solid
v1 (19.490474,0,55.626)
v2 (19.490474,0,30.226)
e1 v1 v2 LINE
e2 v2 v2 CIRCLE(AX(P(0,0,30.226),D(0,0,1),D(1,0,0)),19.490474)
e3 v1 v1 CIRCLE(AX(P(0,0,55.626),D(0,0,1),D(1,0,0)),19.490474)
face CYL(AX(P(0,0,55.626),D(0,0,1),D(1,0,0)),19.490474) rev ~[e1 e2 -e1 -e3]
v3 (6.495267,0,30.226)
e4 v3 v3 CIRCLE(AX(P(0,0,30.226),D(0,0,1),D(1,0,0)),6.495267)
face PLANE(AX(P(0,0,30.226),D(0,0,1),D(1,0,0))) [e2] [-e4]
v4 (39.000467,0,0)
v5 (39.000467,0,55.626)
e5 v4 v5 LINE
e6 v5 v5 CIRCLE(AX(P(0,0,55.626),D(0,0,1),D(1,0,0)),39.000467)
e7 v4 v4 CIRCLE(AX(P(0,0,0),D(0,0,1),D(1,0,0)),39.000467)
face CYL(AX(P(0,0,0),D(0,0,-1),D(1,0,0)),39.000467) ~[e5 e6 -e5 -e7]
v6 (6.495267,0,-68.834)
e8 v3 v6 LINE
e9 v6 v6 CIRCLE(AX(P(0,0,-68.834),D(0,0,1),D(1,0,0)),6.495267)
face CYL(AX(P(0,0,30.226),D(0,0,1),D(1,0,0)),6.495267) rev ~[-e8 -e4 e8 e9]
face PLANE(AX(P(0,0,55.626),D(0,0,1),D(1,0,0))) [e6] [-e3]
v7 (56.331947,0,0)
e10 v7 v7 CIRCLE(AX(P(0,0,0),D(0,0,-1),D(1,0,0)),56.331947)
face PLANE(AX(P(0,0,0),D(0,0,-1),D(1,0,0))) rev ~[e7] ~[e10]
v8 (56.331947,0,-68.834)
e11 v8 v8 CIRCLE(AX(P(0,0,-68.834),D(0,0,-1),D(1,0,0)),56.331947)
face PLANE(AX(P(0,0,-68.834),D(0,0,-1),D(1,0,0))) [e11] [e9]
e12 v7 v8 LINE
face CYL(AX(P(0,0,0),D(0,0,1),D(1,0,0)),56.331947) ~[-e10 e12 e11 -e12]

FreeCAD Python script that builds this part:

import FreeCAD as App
import Part
import Sketcher
from FreeCAD import Vector
Q = App.Units.Quantity

doc = App.newDocument("Part")
body = doc.addObject("PartDesign::Body", "Body")

sketch1 = body.newObject("Sketcher::SketchObject", "Sketch")
sketch1.AttachmentSupport = (doc.getObject("XY_Plane"), [""])
sketch1.MapMode = "FlatFace"
sketch1.addGeometry(Part.Circle(Vector(0, 0, 0), Vector(0, 0, 1), 39.000467), False)
sketch1.addConstraint(Sketcher.Constraint("Coincident", 0, 3, -1, 1))
sketch1.addConstraint(Sketcher.Constraint("Diameter", 0, 78.000934))
pad1 = body.newObject("PartDesign::Pad", "Pad")
pad1.Profile = sketch1
pad1.Length = Q("2.19 in")

sketch2 = body.newObject("Sketcher::SketchObject", "Sketch001")
sketch2.AttachmentSupport = (doc.getObject("XY_Plane"), [""])
sketch2.MapMode = "FlatFace"
sketch2.AttachmentOffset = App.Placement(Vector(0, 0, 2.19 * 25.4), App.Rotation())
sketch2.addGeometry(Part.Circle(Vector(0, 0, 0), Vector(0, 0, 1), 21.469452), False)
sketch2.addConstraint(Sketcher.Constraint("Coincident", 0, 3, -1, 1))
sketch2.addConstraint(Sketcher.Constraint("Diameter", 0, 42.938904))
pad2 = body.newObject("PartDesign::Pad", "Pad001")
pad2.Profile = sketch2
pad2.Length = Q("1.16 in")
pad2.Reversed = True

sketch3 = body.newObject("Sketcher::SketchObject", "Sketch002")
sketch3.AttachmentSupport = (doc.getObject("XY_Plane"), [""])
sketch3.MapMode = "FlatFace"
sketch3.AttachmentOffset = App.Placement(Vector(0, 0, 2.19 * 25.4), App.Rotation())
sketch3.addGeometry(Part.Circle(Vector(0, 0, 0), Vector(0, 0, 1), 19.490474), False)
sketch3.addConstraint(Sketcher.Constraint("Coincident", 0, 3, -1, 1))
sketch3.addConstraint(Sketcher.Constraint("Diameter", 0, 38.980948))
pocket1 = body.newObject("PartDesign::Pocket", "Pocket")
pocket1.Profile = sketch3
pocket1.Length = Q("1 in")

sketch4 = body.newObject("Sketcher::SketchObject", "Sketch003")
sketch4.AttachmentSupport = (doc.getObject("XY_Plane"), [""])
sketch4.MapMode = "FlatFace"
sketch4.addGeometry(Part.Circle(Vector(0, 0, 0), Vector(0, 0, 1), 56.331947), False)
sketch4.addConstraint(Sketcher.Constraint("Coincident", 0, 3, -1, 1))
sketch4.addConstraint(Sketcher.Constraint("Diameter", 0, 112.663894))
pad3 = body.newObject("PartDesign::Pad", "Pad002")
pad3.Profile = sketch4
pad3.Length = Q("2.71 in")
pad3.Reversed = True

sketch5 = body.newObject("Sketcher::SketchObject", "Sketch004")
sketch5.AttachmentSupport = (doc.getObject("XY_Plane"), [""])
sketch5.MapMode = "FlatFace"
sketch5.AttachmentOffset = App.Placement(Vector(0, 0, 1.19 * 25.4), App.Rotation())
sketch5.addGeometry(Part.Circle(Vector(0, 0, 0), Vector(0, 0, 1), 6.495267), False)
sketch5.addConstraint(Sketcher.Constraint("Coincident", 0, 3, -1, 1))
sketch5.addConstraint(Sketcher.Constraint("Diameter", 0, 12.990534))
pocket2 = body.newObject("PartDesign::Pocket", "Pocket001")
pocket2.Profile = sketch5
pocket2.Length = Q("6.66 in")

doc.recompute()
